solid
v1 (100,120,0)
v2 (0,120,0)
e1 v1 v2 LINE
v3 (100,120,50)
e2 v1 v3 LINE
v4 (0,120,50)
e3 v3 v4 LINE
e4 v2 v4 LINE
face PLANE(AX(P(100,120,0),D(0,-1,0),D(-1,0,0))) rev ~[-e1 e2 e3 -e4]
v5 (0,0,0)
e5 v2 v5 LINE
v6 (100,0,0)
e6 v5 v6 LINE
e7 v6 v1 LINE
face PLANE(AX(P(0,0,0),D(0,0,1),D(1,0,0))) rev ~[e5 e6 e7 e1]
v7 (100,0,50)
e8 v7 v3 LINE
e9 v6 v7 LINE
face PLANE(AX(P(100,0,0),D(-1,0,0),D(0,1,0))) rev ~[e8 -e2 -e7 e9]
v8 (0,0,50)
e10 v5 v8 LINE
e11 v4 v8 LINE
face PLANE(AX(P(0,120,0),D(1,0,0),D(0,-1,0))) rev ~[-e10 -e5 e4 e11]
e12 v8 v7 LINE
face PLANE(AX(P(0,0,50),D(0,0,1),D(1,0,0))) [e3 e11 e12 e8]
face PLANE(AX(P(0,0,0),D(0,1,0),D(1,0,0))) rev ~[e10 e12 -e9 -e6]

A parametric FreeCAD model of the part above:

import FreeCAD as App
import Part
import Sketcher

V = App.Vector
Q = App.Units.Quantity

doc = App.newDocument("Part")
params = doc.addObject("Spreadsheet::Sheet", "Params")
for row, (alias, value) in enumerate([
    ("sketch1_width", "3.937 in"),
    ("pad1_length", "1.9685039 in"),
], start=1):
    params.set(f"A{row}", alias)
    params.set(f"B{row}", "=" + value)
    params.setAlias(f"B{row}", alias)

body = doc.addObject("PartDesign::Body", "Body")

# Sketch on XY plane
sketch1 = body.newObject("Sketcher::SketchObject", "Sketch")
sketch1.AttachmentSupport = (doc.getObject("XY_Plane"), [""])
sketch1.MapMode = "FlatFace"
sketch1.addGeometry(Part.LineSegment(V(0, 120, 0), V(0, 0, 0)), False)
sketch1.addGeometry(Part.LineSegment(V(0, 0, 0), V(100, 0, 0)), False)
sketch1.addGeometry(Part.LineSegment(V(100, 0, 0), V(100, 120, 0)), False)
sketch1.addGeometry(Part.LineSegment(V(100, 120, 0), V(0, 120, 0)), False)
sketch1.addConstraint(Sketcher.Constraint("Coincident", 0, 2, 1, 1))
sketch1.addConstraint(Sketcher.Constraint("Coincident", 1, 2, 2, 1))
sketch1.addConstraint(Sketcher.Constraint("Coincident", 2, 2, 3, 1))
sketch1.addConstraint(Sketcher.Constraint("Coincident", 3, 2, 0, 1))
sketch1.addConstraint(Sketcher.Constraint("Vertical", 0))
sketch1.addConstraint(Sketcher.Constraint("Horizontal", 1))
sketch1.addConstraint(Sketcher.Constraint("Vertical", 2))
sketch1.addConstraint(Sketcher.Constraint("Horizontal", 3))
sketch1.addConstraint(Sketcher.Constraint("Coincident", 0, 2, -1, 1))
sketch1.addConstraint(Sketcher.Constraint("DistanceX", 1, 1, 1, 2, Q("3.937 in")))
sketch1.addConstraint(Sketcher.Constraint("DistanceY", 0, 2, 0, 1, Q("4.7244 in")))
sketch1.setExpression("Constraints[9]", "Params.sketch1_width")
pad1 = body.newObject("PartDesign::Pad", "Pad")
pad1.Profile = sketch1
pad1.setExpression("Length", "Params.pad1_length")

doc.recompute()
